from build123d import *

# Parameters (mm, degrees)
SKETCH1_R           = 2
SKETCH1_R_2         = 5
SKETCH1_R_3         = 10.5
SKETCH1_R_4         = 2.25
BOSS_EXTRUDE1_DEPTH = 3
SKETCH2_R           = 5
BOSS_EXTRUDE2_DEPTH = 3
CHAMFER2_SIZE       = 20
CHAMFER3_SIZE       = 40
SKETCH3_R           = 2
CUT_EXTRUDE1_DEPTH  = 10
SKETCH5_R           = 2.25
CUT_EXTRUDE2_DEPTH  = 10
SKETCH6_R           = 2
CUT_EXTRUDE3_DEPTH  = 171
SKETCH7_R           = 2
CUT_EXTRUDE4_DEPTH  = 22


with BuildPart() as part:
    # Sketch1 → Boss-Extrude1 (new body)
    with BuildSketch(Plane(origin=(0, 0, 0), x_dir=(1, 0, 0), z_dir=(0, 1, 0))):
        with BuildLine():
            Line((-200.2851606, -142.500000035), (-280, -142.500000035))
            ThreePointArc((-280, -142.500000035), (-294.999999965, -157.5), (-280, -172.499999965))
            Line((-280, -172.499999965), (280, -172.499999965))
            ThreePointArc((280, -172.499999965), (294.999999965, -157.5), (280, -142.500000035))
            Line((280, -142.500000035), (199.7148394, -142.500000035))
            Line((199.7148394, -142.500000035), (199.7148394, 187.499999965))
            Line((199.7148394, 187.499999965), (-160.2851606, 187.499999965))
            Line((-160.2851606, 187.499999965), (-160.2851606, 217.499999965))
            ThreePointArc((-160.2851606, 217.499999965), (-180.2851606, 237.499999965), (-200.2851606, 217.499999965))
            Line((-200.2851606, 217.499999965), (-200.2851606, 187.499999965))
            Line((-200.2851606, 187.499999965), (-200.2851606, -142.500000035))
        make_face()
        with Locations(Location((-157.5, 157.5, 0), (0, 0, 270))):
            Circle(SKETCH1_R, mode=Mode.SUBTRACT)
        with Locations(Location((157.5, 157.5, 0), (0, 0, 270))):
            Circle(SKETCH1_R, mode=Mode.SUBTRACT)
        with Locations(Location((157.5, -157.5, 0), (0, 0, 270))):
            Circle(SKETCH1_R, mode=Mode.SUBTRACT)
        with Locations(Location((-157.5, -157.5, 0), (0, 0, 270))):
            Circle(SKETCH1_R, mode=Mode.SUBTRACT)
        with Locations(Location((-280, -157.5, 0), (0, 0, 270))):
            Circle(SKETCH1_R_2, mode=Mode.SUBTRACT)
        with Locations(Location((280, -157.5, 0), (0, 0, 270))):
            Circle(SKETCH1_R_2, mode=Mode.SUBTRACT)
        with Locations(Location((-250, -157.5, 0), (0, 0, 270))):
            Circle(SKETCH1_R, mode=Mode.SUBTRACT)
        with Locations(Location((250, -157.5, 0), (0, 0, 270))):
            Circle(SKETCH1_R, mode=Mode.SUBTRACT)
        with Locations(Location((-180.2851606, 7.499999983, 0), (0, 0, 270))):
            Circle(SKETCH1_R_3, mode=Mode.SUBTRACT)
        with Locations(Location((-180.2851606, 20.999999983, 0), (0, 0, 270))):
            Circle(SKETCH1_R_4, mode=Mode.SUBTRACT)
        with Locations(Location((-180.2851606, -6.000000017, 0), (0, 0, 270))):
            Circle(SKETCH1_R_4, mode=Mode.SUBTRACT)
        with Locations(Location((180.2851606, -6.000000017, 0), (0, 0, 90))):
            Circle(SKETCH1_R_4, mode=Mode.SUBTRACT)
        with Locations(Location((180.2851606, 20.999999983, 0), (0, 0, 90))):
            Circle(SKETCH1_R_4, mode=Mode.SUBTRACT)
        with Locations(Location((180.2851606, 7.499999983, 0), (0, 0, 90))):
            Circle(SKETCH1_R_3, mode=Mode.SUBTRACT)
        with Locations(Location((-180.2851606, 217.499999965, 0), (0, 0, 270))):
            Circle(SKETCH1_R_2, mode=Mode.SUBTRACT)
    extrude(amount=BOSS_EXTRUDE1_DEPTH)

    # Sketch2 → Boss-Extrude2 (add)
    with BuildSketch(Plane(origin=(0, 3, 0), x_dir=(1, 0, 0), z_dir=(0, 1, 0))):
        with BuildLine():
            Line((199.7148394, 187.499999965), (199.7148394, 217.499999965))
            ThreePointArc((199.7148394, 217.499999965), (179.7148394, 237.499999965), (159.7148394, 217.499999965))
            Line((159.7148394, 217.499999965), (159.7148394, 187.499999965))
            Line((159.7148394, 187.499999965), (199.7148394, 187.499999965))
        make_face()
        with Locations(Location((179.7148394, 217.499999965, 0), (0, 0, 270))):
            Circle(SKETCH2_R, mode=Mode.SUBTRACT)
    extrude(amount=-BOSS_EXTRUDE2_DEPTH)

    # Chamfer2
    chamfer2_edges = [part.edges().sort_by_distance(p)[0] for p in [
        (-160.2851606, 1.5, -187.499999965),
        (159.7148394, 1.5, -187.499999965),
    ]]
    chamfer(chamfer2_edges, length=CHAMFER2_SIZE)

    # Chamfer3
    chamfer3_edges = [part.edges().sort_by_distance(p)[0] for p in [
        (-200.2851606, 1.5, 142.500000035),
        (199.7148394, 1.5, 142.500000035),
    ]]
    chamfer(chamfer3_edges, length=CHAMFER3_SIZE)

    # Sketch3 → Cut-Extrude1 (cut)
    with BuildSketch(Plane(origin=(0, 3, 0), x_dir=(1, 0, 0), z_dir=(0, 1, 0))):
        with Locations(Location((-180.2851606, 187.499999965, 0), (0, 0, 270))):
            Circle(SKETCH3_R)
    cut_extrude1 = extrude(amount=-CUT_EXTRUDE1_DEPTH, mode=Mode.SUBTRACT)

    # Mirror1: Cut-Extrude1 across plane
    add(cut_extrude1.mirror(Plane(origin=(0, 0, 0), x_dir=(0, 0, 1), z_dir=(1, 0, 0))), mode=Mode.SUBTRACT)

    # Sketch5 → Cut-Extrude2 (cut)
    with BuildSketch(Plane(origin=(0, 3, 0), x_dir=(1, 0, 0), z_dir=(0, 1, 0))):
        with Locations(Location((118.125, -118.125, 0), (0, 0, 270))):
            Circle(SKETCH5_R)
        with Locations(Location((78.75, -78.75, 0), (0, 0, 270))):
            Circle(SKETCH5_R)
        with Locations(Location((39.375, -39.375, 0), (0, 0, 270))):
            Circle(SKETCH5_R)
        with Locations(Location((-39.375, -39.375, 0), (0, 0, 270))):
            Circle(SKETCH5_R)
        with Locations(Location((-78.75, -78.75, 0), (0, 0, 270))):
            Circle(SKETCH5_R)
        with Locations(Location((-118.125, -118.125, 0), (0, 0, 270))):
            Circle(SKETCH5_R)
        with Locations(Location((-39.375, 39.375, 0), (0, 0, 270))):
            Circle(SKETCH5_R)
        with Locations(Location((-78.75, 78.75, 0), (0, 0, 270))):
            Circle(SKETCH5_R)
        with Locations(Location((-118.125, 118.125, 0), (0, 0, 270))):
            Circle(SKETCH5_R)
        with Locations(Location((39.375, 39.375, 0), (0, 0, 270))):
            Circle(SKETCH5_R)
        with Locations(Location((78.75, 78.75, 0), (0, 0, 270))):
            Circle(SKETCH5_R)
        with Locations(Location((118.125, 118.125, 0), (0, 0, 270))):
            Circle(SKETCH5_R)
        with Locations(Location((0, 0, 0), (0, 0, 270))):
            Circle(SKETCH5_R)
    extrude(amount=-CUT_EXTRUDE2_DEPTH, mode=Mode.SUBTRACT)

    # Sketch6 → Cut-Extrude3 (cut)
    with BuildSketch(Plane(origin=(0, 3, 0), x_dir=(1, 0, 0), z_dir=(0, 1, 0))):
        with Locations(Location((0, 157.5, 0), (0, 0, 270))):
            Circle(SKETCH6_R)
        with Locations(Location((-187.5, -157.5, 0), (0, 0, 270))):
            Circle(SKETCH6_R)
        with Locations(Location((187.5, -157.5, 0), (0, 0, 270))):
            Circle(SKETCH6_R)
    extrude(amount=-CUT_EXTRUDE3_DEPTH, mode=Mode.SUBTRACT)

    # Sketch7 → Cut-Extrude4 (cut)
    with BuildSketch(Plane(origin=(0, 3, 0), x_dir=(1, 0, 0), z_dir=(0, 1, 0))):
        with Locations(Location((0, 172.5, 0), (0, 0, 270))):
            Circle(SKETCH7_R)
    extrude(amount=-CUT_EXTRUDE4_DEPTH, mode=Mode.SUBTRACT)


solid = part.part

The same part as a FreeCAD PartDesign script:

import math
import FreeCAD as App
import Part
import Sketcher
from FreeCAD import Vector


def edges_at(feature, points):
    """Names of the edges that pass closest to the given points."""
    edges = feature.Shape.Edges
    near = lambda p: min(range(len(edges)), key=lambda i: edges[i].distToShape(Part.Vertex(*p))[0])
    return sorted({f"Edge{near(p) + 1}" for p in points})

doc = App.newDocument("Part")
body = doc.addObject("PartDesign::Body", "Body")

sketch1 = doc.addObject("Sketcher::SketchObject", "Sketch")
body.addObject(sketch1)
sketch1.AttachmentSupport = (doc.XZ_Plane, [""])
sketch1.MapMode = "FlatFace"
sketch1.addGeometry(Part.LineSegment(Vector(-200.285161, 142.5, 0), Vector(-280, 142.5, 0)), False)
sketch1.addGeometry(Part.ArcOfCircle(Part.Circle(Vector(-280, 157.5, 0), Vector(0, 0, 1), 15), math.radians(90), math.radians(270)), False)
sketch1.addGeometry(Part.LineSegment(Vector(-280, 172.5, 0), Vector(280, 172.5, 0)), False)
sketch1.addGeometry(Part.ArcOfCircle(Part.Circle(Vector(280, 157.5, 0), Vector(0, 0, 1), 15), math.radians(-90), math.radians(90)), False)
sketch1.addGeometry(Part.LineSegment(Vector(280, 142.5, 0), Vector(199.714839, 142.5, 0)), False)
sketch1.addGeometry(Part.LineSegment(Vector(199.714839, 142.5, 0), Vector(199.714839, -187.5, 0)), False)
sketch1.addGeometry(Part.LineSegment(Vector(199.714839, -187.5, 0), Vector(-160.285161, -187.5, 0)), False)
sketch1.addGeometry(Part.LineSegment(Vector(-160.285161, -187.5, 0), Vector(-160.285161, -217.5, 0)), False)
sketch1.addGeometry(Part.ArcOfCircle(Part.Circle(Vector(-180.285161, -217.5, 0), Vector(0, 0, 1), 20), math.radians(180), math.radians(360)), False)
sketch1.addGeometry(Part.LineSegment(Vector(-200.285161, -217.5, 0), Vector(-200.285161, 142.5, 0)), False)
sketch1.addGeometry(Part.Circle(Vector(-280, 157.5, 0), Vector(0, 0, 1), 5), False)
sketch1.addGeometry(Part.Circle(Vector(-250, 157.5, 0), Vector(0, 0, 1), 2), False)
sketch1.addGeometry(Part.Circle(Vector(-157.5, 157.5, 0), Vector(0, 0, 1), 2), False)
sketch1.addGeometry(Part.Circle(Vector(-180.285161, 6, 0), Vector(0, 0, 1), 2.25), False)
sketch1.addGeometry(Part.Circle(Vector(-180.285161, -7.5, 0), Vector(0, 0, 1), 10.5), False)
sketch1.addGeometry(Part.Circle(Vector(-180.285161, -21, 0), Vector(0, 0, 1), 2.25), False)
sketch1.addGeometry(Part.Circle(Vector(157.5, 157.5, 0), Vector(0, 0, 1), 2), False)
sketch1.addGeometry(Part.Circle(Vector(250, 157.5, 0), Vector(0, 0, 1), 2), False)
sketch1.addGeometry(Part.Circle(Vector(280, 157.5, 0), Vector(0, 0, 1), 5), False)
sketch1.addGeometry(Part.Circle(Vector(180.285161, 6, 0), Vector(0, 0, 1), 2.25), False)
sketch1.addGeometry(Part.Circle(Vector(180.285161, -7.5, 0), Vector(0, 0, 1), 10.5), False)
sketch1.addGeometry(Part.Circle(Vector(180.285161, -21, 0), Vector(0, 0, 1), 2.25), False)
sketch1.addGeometry(Part.Circle(Vector(-157.5, -157.5, 0), Vector(0, 0, 1), 2), False)
sketch1.addGeometry(Part.Circle(Vector(-180.285161, -217.5, 0), Vector(0, 0, 1), 5), False)
sketch1.addGeometry(Part.Circle(Vector(157.5, -157.5, 0), Vector(0, 0, 1), 2), False)
sketch1.addConstraint(Sketcher.Constraint("Tangent", 0, 2, 1, 2))
sketch1.addConstraint(Sketcher.Constraint("Tangent", 1, 1, 2, 1))
sketch1.addConstraint(Sketcher.Constraint("Tangent", 2, 2, 3, 2))
sketch1.addConstraint(Sketcher.Constraint("Tangent", 3, 1, 4, 1))
sketch1.addConstraint(Sketcher.Constraint("Coincident", 4, 2, 5, 1))
sketch1.addConstraint(Sketcher.Constraint("Coincident", 5, 2, 6, 1))
sketch1.addConstraint(Sketcher.Constraint("Coincident", 6, 2, 7, 1))
sketch1.addConstraint(Sketcher.Constraint("Tangent", 7, 2, 8, 2))
sketch1.addConstraint(Sketcher.Constraint("Tangent", 8, 1, 9, 1))
sketch1.addConstraint(Sketcher.Constraint("Coincident", 9, 2, 0, 1))
sketch1.addConstraint(Sketcher.Constraint("Horizontal", 0))
sketch1.addConstraint(Sketcher.Constraint("Horizontal", 2))
sketch1.addConstraint(Sketcher.Constraint("Horizontal", 4))
sketch1.addConstraint(Sketcher.Constraint("Vertical", 5))
sketch1.addConstraint(Sketcher.Constraint("Horizontal", 6))
sketch1.addConstraint(Sketcher.Constraint("Vertical", 7))
sketch1.addConstraint(Sketcher.Constraint("Vertical", 9))
sketch1.addConstraint(Sketcher.Constraint("Coincident", 10, 3, 1, 3))
sketch1.addConstraint(Sketcher.Constraint("Coincident", 18, 3, 3, 3))
sketch1.addConstraint(Sketcher.Constraint("Coincident", 23, 3, 8, 3))
sketch1.addConstraint(Sketcher.Constraint("Equal", 1, 3))
sketch1.addConstraint(Sketcher.Constraint("Equal", 11, 12))
sketch1.addConstraint(Sketcher.Constraint("Equal", 13, 15))
sketch1.addConstraint(Sketcher.Constraint("Equal", 12, 16))
sketch1.addConstraint(Sketcher.Constraint("Equal", 16, 17))
sketch1.addConstraint(Sketcher.Constraint("Equal", 10, 18))
sketch1.addConstraint(Sketcher.Constraint("Equal", 15, 19))
sketch1.addConstraint(Sketcher.Constraint("Equal", 14, 20))
sketch1.addConstraint(Sketcher.Constraint("Equal", 19, 21))
sketch1.addConstraint(Sketcher.Constraint("Equal", 17, 22))
sketch1.addConstraint(Sketcher.Constraint("Equal", 18, 23))
sketch1.addConstraint(Sketcher.Constraint("Equal", 22, 24))
sketch1.addConstraint(Sketcher.Constraint("Symmetric", 16, 3, 22, 3, -1, 1))
sketch1.addConstraint(Sketcher.Constraint("Symmetric", 12, 3, 24, 3, -1, 1))
sketch1.addConstraint(Sketcher.Constraint("Symmetric", 12, 3, 16, 3, -2))
sketch1.addConstraint(Sketcher.Constraint("Symmetric", 11, 3, 17, 3, -2))
sketch1.addConstraint(Sketcher.Constraint("Symmetric", 13, 3, 19, 3, -2))
sketch1.addConstraint(Sketcher.Constraint("Symmetric", 14, 3, 20, 3, -2))
sketch1.addConstraint(Sketcher.Constraint("Symmetric", 15, 3, 21, 3, -2))
sketch1.addConstraint(Sketcher.Constraint("Horizontal", 10, 3, 11, 3))
sketch1.addConstraint(Sketcher.Constraint("Horizontal", 11, 3, 12, 3))
sketch1.addConstraint(Sketcher.Constraint("Vertical", 8, 3, 13, 3))
sketch1.addConstraint(Sketcher.Constraint("Vertical", 13, 3, 14, 3))
sketch1.addConstraint(Sketcher.Constraint("Vertical", 14, 3, 15, 3))
sketch1.addConstraint(Sketcher.Constraint("Equal", 6, 9))
sketch1.addConstraint(Sketcher.Constraint("Diameter", 10, 10.0))
sketch1.addConstraint(Sketcher.Constraint("Diameter", 11, 4.0))
sketch1.addConstraint(Sketcher.Constraint("Diameter", 14, 21.0))
sketch1.addConstraint(Sketcher.Constraint("Radius", 1, 15.0))
sketch1.addConstraint(Sketcher.Constraint("Radius", 8, 20.0))
sketch1.addConstraint(Sketcher.Constraint("Diameter", 13, 4.5))
sketch1.addConstraint(Sketcher.Constraint("DistanceX", 2, 1, 2, 2, 560.0))
sketch1.addConstraint(Sketcher.Constraint("DistanceX", 6, 2, 6, 1, 360.0))
sketch1.addConstraint(Sketcher.Constraint("DistanceY", 5, 2, 5, 1, 330.0))
sketch1.addConstraint(Sketcher.Constraint("DistanceX", 1, 3, -1, 1, 280.0))
sketch1.addConstraint(Sketcher.Constraint("DistanceX", 11, 3, -1, 1, 250.0))
sketch1.addConstraint(Sketcher.Constraint("DistanceY", -1, 1, 13, 3, 6.0))
sketch1.addConstraint(Sketcher.Constraint("DistanceY", 15, 3, -1, 1, 21.0))
sketch1.addConstraint(Sketcher.Constraint("DistanceY", 14, 3, 12, 3, 165.0))
sketch1.addConstraint(Sketcher.Constraint("DistanceX", 12, 3, 16, 3, 315.0))
sketch1.addConstraint(Sketcher.Constraint("DistanceY", 8, 3, 22, 3, 60.0))
sketch1.addConstraint(Sketcher.Constraint("DistanceX", 0, 2, 0, 1, 79.714839))
pad1 = doc.addObject("PartDesign::Pad", "Pad")
body.addObject(pad1)
pad1.Profile = sketch1
pad1.Length = 3
pad1.Reversed = True

sketch2 = doc.addObject("Sketcher::SketchObject", "Sketch001")
body.addObject(sketch2)
sketch2.AttachmentSupport = (doc.XZ_Plane, [""])
sketch2.MapMode = "FlatFace"
sketch2.AttachmentOffset = App.Placement(Vector(0, 0, -3), App.Rotation())
sketch2.addGeometry(Part.LineSegment(Vector(199.714839, -187.5, 0), Vector(199.714839, -217.5, 0)), False)
sketch2.addGeometry(Part.ArcOfCircle(Part.Circle(Vector(179.714839, -217.5, 0), Vector(0, 0, 1), 20), math.radians(180), math.radians(360)), False)
sketch2.addGeometry(Part.LineSegment(Vector(159.714839, -217.5, 0), Vector(159.714839, -187.5, 0)), False)
sketch2.addGeometry(Part.LineSegment(Vector(159.714839, -187.5, 0), Vector(199.714839, -187.5, 0)), False)
sketch2.addGeometry(Part.Circle(Vector(179.714839, -217.5, 0), Vector(0, 0, 1), 5), False)
sketch2.addConstraint(Sketcher.Constraint("Tangent", 0, 2, 1, 2))
sketch2.addConstraint(Sketcher.Constraint("Tangent", 1, 1, 2, 1))
sketch2.addConstraint(Sketcher.Constraint("Coincident", 2, 2, 3, 1))
sketch2.addConstraint(Sketcher.Constraint("Coincident", 3, 2, 0, 1))
sketch2.addConstraint(Sketcher.Constraint("Vertical", 0))
sketch2.addConstraint(Sketcher.Constraint("Vertical", 2))
sketch2.addConstraint(Sketcher.Constraint("Horizontal", 3))
sketch2.addConstraint(Sketcher.Constraint("Coincident", 4, 3, 1, 3))
sketch2.addConstraint(Sketcher.Constraint("Diameter", 4, 10.0))
sketch2.addConstraint(Sketcher.Constraint("Radius", 1, 20.0))
sketch2.addConstraint(Sketcher.Constraint("DistanceY", 0, 2, 0, 1, 30.0))
sketch2.addConstraint(Sketcher.Constraint("DistanceY", 1, 3, -1, 1, 217.5))
sketch2.addConstraint(Sketcher.Constraint("DistanceX", -1, 1, 1, 3, 179.714839))
pad2 = doc.addObject("PartDesign::Pad", "Pad001")
body.addObject(pad2)
pad2.Profile = sketch2
pad2.Length = 3
doc.recompute()

chamfer = doc.addObject("PartDesign::Chamfer", "Chamfer")
body.addObject(chamfer)
chamfer.Base = (pad2, edges_at(pad2, [(-160.285, 1.5, -187.5), (159.715, 1.5, -187.5)]))
chamfer.Size = 20
doc.recompute()

chamfer2 = doc.addObject("PartDesign::Chamfer", "Chamfer001")
body.addObject(chamfer2)
chamfer2.Base = (chamfer, edges_at(chamfer, [(-200.285, 1.5, 142.5), (199.715, 1.5, 142.5)]))
chamfer2.Size = 40

sketch3 = doc.addObject("Sketcher::SketchObject", "Sketch002")
body.addObject(sketch3)
sketch3.AttachmentSupport = (doc.XZ_Plane, [""])
sketch3.MapMode = "FlatFace"
sketch3.AttachmentOffset = App.Placement(Vector(0, 0, -3), App.Rotation())
sketch3.addGeometry(Part.Circle(Vector(-180.285161, -187.5, 0), Vector(0, 0, 1), 2), False)
sketch3.addConstraint(Sketcher.Constraint("Diameter", 0, 4.0))
sketch3.addConstraint(Sketcher.Constraint("DistanceY", 0, 3, -1, 1, 187.5))
sketch3.addConstraint(Sketcher.Constraint("DistanceX", 0, 3, -1, 1, 180.285161))
pocket1 = doc.addObject("PartDesign::Pocket", "Pocket")
body.addObject(pocket1)
pocket1.Profile = sketch3
pocket1.Length = 10
pocket1.Reversed = True
doc.recompute()

mirrored = doc.addObject("PartDesign::Mirrored", "Mirrored")
body.addObject(mirrored)
mirrored.Originals = [pocket1]
mirrored.MirrorPlane = (doc.YZ_Plane, [""])
body.Tip = mirrored

sketch4 = doc.addObject("Sketcher::SketchObject", "Sketch003")
body.addObject(sketch4)
sketch4.AttachmentSupport = (doc.XZ_Plane, [""])
sketch4.MapMode = "FlatFace"
sketch4.AttachmentOffset = App.Placement(Vector(0, 0, -3), App.Rotation())
sketch4.addGeometry(Part.Circle(Vector(118.125, 118.125, 0), Vector(0, 0, 1), 2.25), False)
sketch4.addGeometry(Part.Circle(Vector(78.75, 78.75, 0), Vector(0, 0, 1), 2.25), False)
sketch4.addGeometry(Part.Circle(Vector(39.375, 39.375, 0), Vector(0, 0, 1), 2.25), False)
sketch4.addGeometry(Part.Circle(Vector(-39.375, 39.375, 0), Vector(0, 0, 1), 2.25), False)
sketch4.addGeometry(Part.Circle(Vector(-78.75, 78.75, 0), Vector(0, 0, 1), 2.25), False)
sketch4.addGeometry(Part.Circle(Vector(-118.125, 118.125, 0), Vector(0, 0, 1), 2.25), False)
sketch4.addGeometry(Part.Circle(Vector(-39.375, -39.375, 0), Vector(0, 0, 1), 2.25), False)
sketch4.addGeometry(Part.Circle(Vector(-78.75, -78.75, 0), Vector(0, 0, 1), 2.25), False)
sketch4.addGeometry(Part.Circle(Vector(-118.125, -118.125, 0), Vector(0, 0, 1), 2.25), False)
sketch4.addGeometry(Part.Circle(Vector(39.375, -39.375, 0), Vector(0, 0, 1), 2.25), False)
sketch4.addGeometry(Part.Circle(Vector(78.75, -78.75, 0), Vector(0, 0, 1), 2.25), False)
sketch4.addGeometry(Part.Circle(Vector(118.125, -118.125, 0), Vector(0, 0, 1), 2.25), False)
sketch4.addGeometry(Part.Circle(Vector(0, 0, 0), Vector(0, 0, 1), 2.25), False)
sketch4.addConstraint(Sketcher.Constraint("Coincident", 12, 3, -1, 1))
sketch4.addConstraint(Sketcher.Constraint("Equal", 0, 1))
sketch4.addConstraint(Sketcher.Constraint("Equal", 1, 2))
sketch4.addConstraint(Sketcher.Constraint("Equal", 2, 3))
sketch4.addConstraint(Sketcher.Constraint("Equal", 3, 4))
sketch4.addConstraint(Sketcher.Constraint("Equal", 4, 5))
sketch4.addConstraint(Sketcher.Constraint("Equal", 5, 6))
sketch4.addConstraint(Sketcher.Constraint("Equal", 6, 7))
sketch4.addConstraint(Sketcher.Constraint("Equal", 7, 8))
sketch4.addConstraint(Sketcher.Constraint("Equal", 8, 9))
sketch4.addConstraint(Sketcher.Constraint("Equal", 9, 10))
sketch4.addConstraint(Sketcher.Constraint("Equal", 10, 11))
sketch4.addConstraint(Sketcher.Constraint("Equal", 11, 12))
sketch4.addConstraint(Sketcher.Constraint("Symmetric", 2, 3, 6, 3, -1, 1))
sketch4.addConstraint(Sketcher.Constraint("Symmetric", 1, 3, 7, 3, -1, 1))
sketch4.addConstraint(Sketcher.Constraint("Symmetric", 0, 3, 8, 3, -1, 1))
sketch4.addConstraint(Sketcher.Constraint("Symmetric", 3, 3, 9, 3, -1, 1))
sketch4.addConstraint(Sketcher.Constraint("Symmetric", 4, 3, 10, 3, -1, 1))
sketch4.addConstraint(Sketcher.Constraint("Symmetric", 5, 3, 11, 3, -1, 1))
sketch4.addConstraint(Sketcher.Constraint("Symmetric", 2, 3, 3, 3, -2))
sketch4.addConstraint(Sketcher.Constraint("Symmetric", 1, 3, 4, 3, -2))
sketch4.addConstraint(Sketcher.Constraint("Symmetric", 0, 3, 5, 3, -2))
sketch4.addConstraint(Sketcher.Constraint("Diameter", 0, 4.5))
sketch4.addConstraint(Sketcher.Constraint("DistanceX", 3, 3, 0, 3, 157.5))
sketch4.addConstraint(Sketcher.Constraint("DistanceX", 4, 3, 1, 3, 157.5))
sketch4.addConstraint(Sketcher.Constraint("DistanceY", 6, 3, 5, 3, 157.5))
sketch4.addConstraint(Sketcher.Constraint("DistanceY", 7, 3, 4, 3, 157.5))
sketch4.addConstraint(Sketcher.Constraint("DistanceX", 2, 3, 0, 3, 78.75))
sketch4.addConstraint(Sketcher.Constraint("DistanceY", 2, 3, 0, 3, 78.75))
pocket2 = doc.addObject("PartDesign::Pocket", "Pocket001")
body.addObject(pocket2)
pocket2.Profile = sketch4
pocket2.Length = 10
pocket2.Reversed = True

sketch5 = doc.addObject("Sketcher::SketchObject", "Sketch004")
body.addObject(sketch5)
sketch5.AttachmentSupport = (doc.XZ_Plane, [""])
sketch5.MapMode = "FlatFace"
sketch5.AttachmentOffset = App.Placement(Vector(0, 0, -3), App.Rotation())
sketch5.addGeometry(Part.Circle(Vector(0, -157.5, 0), Vector(0, 0, 1), 2), False)
sketch5.addGeometry(Part.Circle(Vector(-187.5, 157.5, 0), Vector(0, 0, 1), 2), False)
sketch5.addGeometry(Part.Circle(Vector(187.5, 157.5, 0), Vector(0, 0, 1), 2), False)
sketch5.addConstraint(Sketcher.Constraint("Equal", 0, 1))
sketch5.addConstraint(Sketcher.Constraint("Equal", 1, 2))
sketch5.addConstraint(Sketcher.Constraint("Symmetric", 1, 3, 2, 3, -2))
sketch5.addConstraint(Sketcher.Constraint("PointOnObject", 0, 3, -2))
sketch5.addConstraint(Sketcher.Constraint("Diameter", 0, 4.0))
sketch5.addConstraint(Sketcher.Constraint("DistanceY", 0, 3, 1, 3, 315.0))
sketch5.addConstraint(Sketcher.Constraint("DistanceX", 1, 3, 2, 3, 375.0))
sketch5.addConstraint(Sketcher.Constraint("DistanceY", 0, 3, -1, 1, 157.5))
pocket3 = doc.addObject("PartDesign::Pocket", "Pocket002")
body.addObject(pocket3)
pocket3.Profile = sketch5
pocket3.Length = 171
pocket3.Reversed = True

sketch6 = doc.addObject("Sketcher::SketchObject", "Sketch005")
body.addObject(sketch6)
sketch6.AttachmentSupport = (doc.XZ_Plane, [""])
sketch6.MapMode = "FlatFace"
sketch6.AttachmentOffset = App.Placement(Vector(0, 0, -3), App.Rotation())
sketch6.addGeometry(Part.Circle(Vector(0, -172.5, 0), Vector(0, 0, 1), 2), False)
sketch6.addConstraint(Sketcher.Constraint("PointOnObject", 0, 3, -2))
sketch6.addConstraint(Sketcher.Constraint("Diameter", 0, 4.0))
sketch6.addConstraint(Sketcher.Constraint("DistanceY", 0, 3, -1, 1, 172.5))
pocket4 = doc.addObject("PartDesign::Pocket", "Pocket003")
body.addObject(pocket4)
pocket4.Profile = sketch6
pocket4.Length = 22
pocket4.Reversed = True

doc.recompute()
